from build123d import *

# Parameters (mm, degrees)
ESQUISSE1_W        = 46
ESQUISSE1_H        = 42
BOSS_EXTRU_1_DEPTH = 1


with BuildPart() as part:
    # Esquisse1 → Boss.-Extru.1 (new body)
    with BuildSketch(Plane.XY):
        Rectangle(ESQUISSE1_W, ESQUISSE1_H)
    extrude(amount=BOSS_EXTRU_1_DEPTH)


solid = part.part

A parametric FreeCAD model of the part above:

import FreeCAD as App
import Part
import Sketcher

doc = App.newDocument("Part")
body = doc.addObject("PartDesign::Body", "Body")

sketch1 = body.newObject("Sketcher::SketchObject", "Sketch")
sketch1.AttachmentSupport = (doc.getObject("XY_Plane"), [""])
sketch1.MapMode = "FlatFace"
sketch1.addGeometry(Part.LineSegment(App.Vector(-23, 21, 0), App.Vector(-23, -21, 0)), False)
sketch1.addGeometry(Part.LineSegment(App.Vector(-23, -21, 0), App.Vector(23, -21, 0)), False)
sketch1.addGeometry(Part.LineSegment(App.Vector(23, -21, 0), App.Vector(23, 21, 0)), False)
sketch1.addGeometry(Part.LineSegment(App.Vector(23, 21, 0), App.Vector(-23, 21, 0)), False)
sketch1.addConstraint(Sketcher.Constraint("Coincident", 0, 2, 1, 1))
sketch1.addConstraint(Sketcher.Constraint("Coincident", 1, 2, 2, 1))
sketch1.addConstraint(Sketcher.Constraint("Coincident", 2, 2, 3, 1))
sketch1.addConstraint(Sketcher.Constraint("Coincident", 3, 2, 0, 1))
sketch1.addConstraint(Sketcher.Constraint("Vertical", 0))
sketch1.addConstraint(Sketcher.Constraint("Horizontal", 1))
sketch1.addConstraint(Sketcher.Constraint("Vertical", 2))
sketch1.addConstraint(Sketcher.Constraint("Horizontal", 3))
sketch1.addConstraint(Sketcher.Constraint("Symmetric", 0, 2, 2, 2, -1, 1))
sketch1.addConstraint(Sketcher.Constraint("DistanceX", 1, 1, 1, 2, 46.0))
sketch1.addConstraint(Sketcher.Constraint("DistanceY", 0, 2, 0, 1, 42.0))
pad1 = body.newObject("PartDesign::Pad", "Pad")
pad1.Profile = sketch1
pad1.Length = 1

doc.recompute()
